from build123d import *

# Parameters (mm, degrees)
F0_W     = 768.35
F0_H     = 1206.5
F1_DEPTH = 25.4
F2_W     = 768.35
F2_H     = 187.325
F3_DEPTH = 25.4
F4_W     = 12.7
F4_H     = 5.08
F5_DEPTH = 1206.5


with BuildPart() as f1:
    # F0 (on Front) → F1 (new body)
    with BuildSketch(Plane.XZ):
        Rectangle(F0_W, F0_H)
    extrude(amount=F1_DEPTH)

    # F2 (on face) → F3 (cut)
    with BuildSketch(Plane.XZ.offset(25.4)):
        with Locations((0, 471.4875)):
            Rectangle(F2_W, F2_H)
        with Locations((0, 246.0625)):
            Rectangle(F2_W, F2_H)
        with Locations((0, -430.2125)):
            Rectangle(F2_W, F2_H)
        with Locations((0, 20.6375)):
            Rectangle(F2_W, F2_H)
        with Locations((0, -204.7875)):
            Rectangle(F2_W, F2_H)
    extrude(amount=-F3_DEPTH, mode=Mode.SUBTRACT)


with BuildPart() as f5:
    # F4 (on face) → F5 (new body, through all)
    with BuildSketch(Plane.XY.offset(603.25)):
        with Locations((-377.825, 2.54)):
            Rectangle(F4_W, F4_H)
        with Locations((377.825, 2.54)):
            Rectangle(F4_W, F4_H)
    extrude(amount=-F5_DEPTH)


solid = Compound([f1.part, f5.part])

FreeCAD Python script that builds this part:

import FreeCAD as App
import Part
import Sketcher

V = App.Vector
Q = App.Units.Quantity


def add_polygon(sketch, points):
    """Adds a closed chain of lines whose ends are joined by coincident constraints."""
    first, n = sketch.GeometryCount, len(points)
    for a, b in zip(points, points[1:] + points[:1]):
        sketch.addGeometry(Part.LineSegment(App.Vector(*a, 0), App.Vector(*b, 0)), False)
    for i in range(n):
        sketch.addConstraint(Sketcher.Constraint("Coincident", first + i, 2, first + (i + 1) % n, 1))

doc = App.newDocument("Part")
body = doc.addObject("PartDesign::Body", "Body")
body.AllowCompound = True

# Sketch on XZ plane
sketch1 = body.newObject("Sketcher::SketchObject", "Sketch")
sketch1.AttachmentSupport = (doc.getObject("XZ_Plane"), [""])
sketch1.MapMode = "FlatFace"
add_polygon(sketch1, [(-384, 603), (-384, -603), (384, -603), (384, 603)])  # lines 0-3
sketch1.addConstraint([
    Sketcher.Constraint("Vertical", 0),
    Sketcher.Constraint("Horizontal", 1),
    Sketcher.Constraint("Vertical", 2),
    Sketcher.Constraint("Horizontal", 3),
    Sketcher.Constraint("Symmetric", 0, 2, 2, 2, -1, 1),
    Sketcher.Constraint("DistanceY", 0, 2, 0, 1, Q("47.5 in")),
    Sketcher.Constraint("DistanceX", 1, 1, 1, 2, Q("30.25 in")),
])
pad1 = body.newObject("PartDesign::Pad", "Pad")
pad1.Profile = sketch1
pad1.Length = Q("1 in")

# Sketch on XZ plane
sketch2 = body.newObject("Sketcher::SketchObject", "Sketch001")
sketch2.AttachmentSupport = (doc.getObject("XZ_Plane"), [""])
sketch2.MapMode = "FlatFace"
sketch2.AttachmentOffset = App.Placement(V(0, 0, 1 * 25.4), App.Rotation())
add_polygon(sketch2, [(-384, 565), (-384, 378), (384, 378), (384, 565)])  # lines 0-3
add_polygon(sketch2, [(-384, 340), (-384, 152), (384, 152), (384, 340)])  # lines 4-7
add_polygon(sketch2, [(-384, -337), (-384, -524), (384, -524), (384, -337)])  # lines 8-11
add_polygon(sketch2, [(-384, 114), (-384, -73), (384, -73), (384, 114)])  # lines 12-15
add_polygon(sketch2, [(-384, -111), (-384, -298), (384, -298), (384, -111)])  # lines 16-19
sketch2.addConstraint([
    Sketcher.Constraint("Vertical", 0),
    Sketcher.Constraint("Horizontal", 1),
    Sketcher.Constraint("Vertical", 2),
    Sketcher.Constraint("Horizontal", 3),
    Sketcher.Constraint("Vertical", 4),
    Sketcher.Constraint("Horizontal", 5),
    Sketcher.Constraint("Vertical", 6),
    Sketcher.Constraint("Horizontal", 7),
    Sketcher.Constraint("Vertical", 8),
    Sketcher.Constraint("Horizontal", 9),
    Sketcher.Constraint("Vertical", 10),
    Sketcher.Constraint("Horizontal", 11),
    Sketcher.Constraint("Vertical", 12),
    Sketcher.Constraint("Horizontal", 13),
    Sketcher.Constraint("Vertical", 14),
    Sketcher.Constraint("Horizontal", 15),
    Sketcher.Constraint("Vertical", 16),
    Sketcher.Constraint("Horizontal", 17),
    Sketcher.Constraint("Vertical", 18),
    Sketcher.Constraint("Horizontal", 19),
    Sketcher.Constraint("Vertical", 3, 2, 4, 2),
    Sketcher.Constraint("Vertical", 2, 2, 5, 2),
    Sketcher.Constraint("Vertical", 7, 2, 8, 2),
    Sketcher.Constraint("Vertical", 6, 2, 9, 2),
    Sketcher.Constraint("Vertical", 11, 2, 12, 2),
    Sketcher.Constraint("Vertical", 10, 2, 13, 2),
    Sketcher.Constraint("Vertical", 15, 2, 16, 2),
    Sketcher.Constraint("Vertical", 14, 2, 17, 2),
    Sketcher.Constraint("Equal", 2, 4),
    Sketcher.Constraint("Equal", 6, 8),
    Sketcher.Constraint("Equal", 10, 12),
    Sketcher.Constraint("Equal", 14, 16),
    Sketcher.Constraint("DistanceY", -1, 1, 4, 2, Q("6 in")),
    Sketcher.Constraint("DistanceY", 8, 2, 7, 2, Q("34 in")),
    Sketcher.Constraint("DistanceX", 1, 1, 1, 2, Q("30.25 in")),
    Sketcher.Constraint("DistanceY", -1, 1, 14, 2, Q("4.5 in")),
    Sketcher.Constraint("DistanceY", 6, 2, 1, 2, Q("1.5 in")),
    Sketcher.Constraint("DistanceY", 11, 2, 16, 2, Q("1.5 in")),
    Sketcher.Constraint("DistanceY", 18, 2, 13, 2, Q("1.5 in")),
    Sketcher.Constraint("DistanceX", 0, 2, -1, 1, Q("15.125 in")),
])
pocket1 = body.newObject("PartDesign::Pocket", "Pocket")
pocket1.Profile = sketch2
pocket1.Length = Q("1 in")
body2 = doc.addObject("PartDesign::Body", "Body001")
body2.AllowCompound = True

# Sketch on XY plane
sketch3 = body2.newObject("Sketcher::SketchObject", "Sketch002")
sketch3.AttachmentSupport = (doc.getObject("XY_Plane001"), [""])
sketch3.MapMode = "FlatFace"
sketch3.AttachmentOffset = App.Placement(V(0, 0, 23.75 * 25.4), App.Rotation())
add_polygon(sketch3, [(-384, 5), (-384, 0), (-371, 0), (-371, 5)])  # lines 0-3
add_polygon(sketch3, [(371, 5), (371, 0), (384, 0), (384, 5)])  # lines 4-7
sketch3.addConstraint([
    Sketcher.Constraint("Vertical", 0),
    Sketcher.Constraint("Horizontal", 1),
    Sketcher.Constraint("Vertical", 2),
    Sketcher.Constraint("Horizontal", 3),
    Sketcher.Constraint("Vertical", 4),
    Sketcher.Constraint("Horizontal", 5),
    Sketcher.Constraint("Vertical", 6),
    Sketcher.Constraint("Horizontal", 7),
    Sketcher.Constraint("Symmetric", 1, 2, 4, 2, -1, 1),
    Sketcher.Constraint("Symmetric", 0, 2, 5, 2, -2),
    Sketcher.Constraint("Horizontal", 3, 2, 6, 2),
    Sketcher.Constraint("DistanceX", 1, 1, 1, 2, Q("0.5 in")),
    Sketcher.Constraint("DistanceY", 0, 2, 0, 1, Q("0.2 in")),
    Sketcher.Constraint("DistanceX", 1, 2, 4, 2, Q("29.25 in")),
])
pad2 = body2.newObject("PartDesign::Pad", "Pad001")
pad2.Profile = sketch3
pad2.Length = Q("47.5 in")
pad2.Reversed = True

doc.recompute()
